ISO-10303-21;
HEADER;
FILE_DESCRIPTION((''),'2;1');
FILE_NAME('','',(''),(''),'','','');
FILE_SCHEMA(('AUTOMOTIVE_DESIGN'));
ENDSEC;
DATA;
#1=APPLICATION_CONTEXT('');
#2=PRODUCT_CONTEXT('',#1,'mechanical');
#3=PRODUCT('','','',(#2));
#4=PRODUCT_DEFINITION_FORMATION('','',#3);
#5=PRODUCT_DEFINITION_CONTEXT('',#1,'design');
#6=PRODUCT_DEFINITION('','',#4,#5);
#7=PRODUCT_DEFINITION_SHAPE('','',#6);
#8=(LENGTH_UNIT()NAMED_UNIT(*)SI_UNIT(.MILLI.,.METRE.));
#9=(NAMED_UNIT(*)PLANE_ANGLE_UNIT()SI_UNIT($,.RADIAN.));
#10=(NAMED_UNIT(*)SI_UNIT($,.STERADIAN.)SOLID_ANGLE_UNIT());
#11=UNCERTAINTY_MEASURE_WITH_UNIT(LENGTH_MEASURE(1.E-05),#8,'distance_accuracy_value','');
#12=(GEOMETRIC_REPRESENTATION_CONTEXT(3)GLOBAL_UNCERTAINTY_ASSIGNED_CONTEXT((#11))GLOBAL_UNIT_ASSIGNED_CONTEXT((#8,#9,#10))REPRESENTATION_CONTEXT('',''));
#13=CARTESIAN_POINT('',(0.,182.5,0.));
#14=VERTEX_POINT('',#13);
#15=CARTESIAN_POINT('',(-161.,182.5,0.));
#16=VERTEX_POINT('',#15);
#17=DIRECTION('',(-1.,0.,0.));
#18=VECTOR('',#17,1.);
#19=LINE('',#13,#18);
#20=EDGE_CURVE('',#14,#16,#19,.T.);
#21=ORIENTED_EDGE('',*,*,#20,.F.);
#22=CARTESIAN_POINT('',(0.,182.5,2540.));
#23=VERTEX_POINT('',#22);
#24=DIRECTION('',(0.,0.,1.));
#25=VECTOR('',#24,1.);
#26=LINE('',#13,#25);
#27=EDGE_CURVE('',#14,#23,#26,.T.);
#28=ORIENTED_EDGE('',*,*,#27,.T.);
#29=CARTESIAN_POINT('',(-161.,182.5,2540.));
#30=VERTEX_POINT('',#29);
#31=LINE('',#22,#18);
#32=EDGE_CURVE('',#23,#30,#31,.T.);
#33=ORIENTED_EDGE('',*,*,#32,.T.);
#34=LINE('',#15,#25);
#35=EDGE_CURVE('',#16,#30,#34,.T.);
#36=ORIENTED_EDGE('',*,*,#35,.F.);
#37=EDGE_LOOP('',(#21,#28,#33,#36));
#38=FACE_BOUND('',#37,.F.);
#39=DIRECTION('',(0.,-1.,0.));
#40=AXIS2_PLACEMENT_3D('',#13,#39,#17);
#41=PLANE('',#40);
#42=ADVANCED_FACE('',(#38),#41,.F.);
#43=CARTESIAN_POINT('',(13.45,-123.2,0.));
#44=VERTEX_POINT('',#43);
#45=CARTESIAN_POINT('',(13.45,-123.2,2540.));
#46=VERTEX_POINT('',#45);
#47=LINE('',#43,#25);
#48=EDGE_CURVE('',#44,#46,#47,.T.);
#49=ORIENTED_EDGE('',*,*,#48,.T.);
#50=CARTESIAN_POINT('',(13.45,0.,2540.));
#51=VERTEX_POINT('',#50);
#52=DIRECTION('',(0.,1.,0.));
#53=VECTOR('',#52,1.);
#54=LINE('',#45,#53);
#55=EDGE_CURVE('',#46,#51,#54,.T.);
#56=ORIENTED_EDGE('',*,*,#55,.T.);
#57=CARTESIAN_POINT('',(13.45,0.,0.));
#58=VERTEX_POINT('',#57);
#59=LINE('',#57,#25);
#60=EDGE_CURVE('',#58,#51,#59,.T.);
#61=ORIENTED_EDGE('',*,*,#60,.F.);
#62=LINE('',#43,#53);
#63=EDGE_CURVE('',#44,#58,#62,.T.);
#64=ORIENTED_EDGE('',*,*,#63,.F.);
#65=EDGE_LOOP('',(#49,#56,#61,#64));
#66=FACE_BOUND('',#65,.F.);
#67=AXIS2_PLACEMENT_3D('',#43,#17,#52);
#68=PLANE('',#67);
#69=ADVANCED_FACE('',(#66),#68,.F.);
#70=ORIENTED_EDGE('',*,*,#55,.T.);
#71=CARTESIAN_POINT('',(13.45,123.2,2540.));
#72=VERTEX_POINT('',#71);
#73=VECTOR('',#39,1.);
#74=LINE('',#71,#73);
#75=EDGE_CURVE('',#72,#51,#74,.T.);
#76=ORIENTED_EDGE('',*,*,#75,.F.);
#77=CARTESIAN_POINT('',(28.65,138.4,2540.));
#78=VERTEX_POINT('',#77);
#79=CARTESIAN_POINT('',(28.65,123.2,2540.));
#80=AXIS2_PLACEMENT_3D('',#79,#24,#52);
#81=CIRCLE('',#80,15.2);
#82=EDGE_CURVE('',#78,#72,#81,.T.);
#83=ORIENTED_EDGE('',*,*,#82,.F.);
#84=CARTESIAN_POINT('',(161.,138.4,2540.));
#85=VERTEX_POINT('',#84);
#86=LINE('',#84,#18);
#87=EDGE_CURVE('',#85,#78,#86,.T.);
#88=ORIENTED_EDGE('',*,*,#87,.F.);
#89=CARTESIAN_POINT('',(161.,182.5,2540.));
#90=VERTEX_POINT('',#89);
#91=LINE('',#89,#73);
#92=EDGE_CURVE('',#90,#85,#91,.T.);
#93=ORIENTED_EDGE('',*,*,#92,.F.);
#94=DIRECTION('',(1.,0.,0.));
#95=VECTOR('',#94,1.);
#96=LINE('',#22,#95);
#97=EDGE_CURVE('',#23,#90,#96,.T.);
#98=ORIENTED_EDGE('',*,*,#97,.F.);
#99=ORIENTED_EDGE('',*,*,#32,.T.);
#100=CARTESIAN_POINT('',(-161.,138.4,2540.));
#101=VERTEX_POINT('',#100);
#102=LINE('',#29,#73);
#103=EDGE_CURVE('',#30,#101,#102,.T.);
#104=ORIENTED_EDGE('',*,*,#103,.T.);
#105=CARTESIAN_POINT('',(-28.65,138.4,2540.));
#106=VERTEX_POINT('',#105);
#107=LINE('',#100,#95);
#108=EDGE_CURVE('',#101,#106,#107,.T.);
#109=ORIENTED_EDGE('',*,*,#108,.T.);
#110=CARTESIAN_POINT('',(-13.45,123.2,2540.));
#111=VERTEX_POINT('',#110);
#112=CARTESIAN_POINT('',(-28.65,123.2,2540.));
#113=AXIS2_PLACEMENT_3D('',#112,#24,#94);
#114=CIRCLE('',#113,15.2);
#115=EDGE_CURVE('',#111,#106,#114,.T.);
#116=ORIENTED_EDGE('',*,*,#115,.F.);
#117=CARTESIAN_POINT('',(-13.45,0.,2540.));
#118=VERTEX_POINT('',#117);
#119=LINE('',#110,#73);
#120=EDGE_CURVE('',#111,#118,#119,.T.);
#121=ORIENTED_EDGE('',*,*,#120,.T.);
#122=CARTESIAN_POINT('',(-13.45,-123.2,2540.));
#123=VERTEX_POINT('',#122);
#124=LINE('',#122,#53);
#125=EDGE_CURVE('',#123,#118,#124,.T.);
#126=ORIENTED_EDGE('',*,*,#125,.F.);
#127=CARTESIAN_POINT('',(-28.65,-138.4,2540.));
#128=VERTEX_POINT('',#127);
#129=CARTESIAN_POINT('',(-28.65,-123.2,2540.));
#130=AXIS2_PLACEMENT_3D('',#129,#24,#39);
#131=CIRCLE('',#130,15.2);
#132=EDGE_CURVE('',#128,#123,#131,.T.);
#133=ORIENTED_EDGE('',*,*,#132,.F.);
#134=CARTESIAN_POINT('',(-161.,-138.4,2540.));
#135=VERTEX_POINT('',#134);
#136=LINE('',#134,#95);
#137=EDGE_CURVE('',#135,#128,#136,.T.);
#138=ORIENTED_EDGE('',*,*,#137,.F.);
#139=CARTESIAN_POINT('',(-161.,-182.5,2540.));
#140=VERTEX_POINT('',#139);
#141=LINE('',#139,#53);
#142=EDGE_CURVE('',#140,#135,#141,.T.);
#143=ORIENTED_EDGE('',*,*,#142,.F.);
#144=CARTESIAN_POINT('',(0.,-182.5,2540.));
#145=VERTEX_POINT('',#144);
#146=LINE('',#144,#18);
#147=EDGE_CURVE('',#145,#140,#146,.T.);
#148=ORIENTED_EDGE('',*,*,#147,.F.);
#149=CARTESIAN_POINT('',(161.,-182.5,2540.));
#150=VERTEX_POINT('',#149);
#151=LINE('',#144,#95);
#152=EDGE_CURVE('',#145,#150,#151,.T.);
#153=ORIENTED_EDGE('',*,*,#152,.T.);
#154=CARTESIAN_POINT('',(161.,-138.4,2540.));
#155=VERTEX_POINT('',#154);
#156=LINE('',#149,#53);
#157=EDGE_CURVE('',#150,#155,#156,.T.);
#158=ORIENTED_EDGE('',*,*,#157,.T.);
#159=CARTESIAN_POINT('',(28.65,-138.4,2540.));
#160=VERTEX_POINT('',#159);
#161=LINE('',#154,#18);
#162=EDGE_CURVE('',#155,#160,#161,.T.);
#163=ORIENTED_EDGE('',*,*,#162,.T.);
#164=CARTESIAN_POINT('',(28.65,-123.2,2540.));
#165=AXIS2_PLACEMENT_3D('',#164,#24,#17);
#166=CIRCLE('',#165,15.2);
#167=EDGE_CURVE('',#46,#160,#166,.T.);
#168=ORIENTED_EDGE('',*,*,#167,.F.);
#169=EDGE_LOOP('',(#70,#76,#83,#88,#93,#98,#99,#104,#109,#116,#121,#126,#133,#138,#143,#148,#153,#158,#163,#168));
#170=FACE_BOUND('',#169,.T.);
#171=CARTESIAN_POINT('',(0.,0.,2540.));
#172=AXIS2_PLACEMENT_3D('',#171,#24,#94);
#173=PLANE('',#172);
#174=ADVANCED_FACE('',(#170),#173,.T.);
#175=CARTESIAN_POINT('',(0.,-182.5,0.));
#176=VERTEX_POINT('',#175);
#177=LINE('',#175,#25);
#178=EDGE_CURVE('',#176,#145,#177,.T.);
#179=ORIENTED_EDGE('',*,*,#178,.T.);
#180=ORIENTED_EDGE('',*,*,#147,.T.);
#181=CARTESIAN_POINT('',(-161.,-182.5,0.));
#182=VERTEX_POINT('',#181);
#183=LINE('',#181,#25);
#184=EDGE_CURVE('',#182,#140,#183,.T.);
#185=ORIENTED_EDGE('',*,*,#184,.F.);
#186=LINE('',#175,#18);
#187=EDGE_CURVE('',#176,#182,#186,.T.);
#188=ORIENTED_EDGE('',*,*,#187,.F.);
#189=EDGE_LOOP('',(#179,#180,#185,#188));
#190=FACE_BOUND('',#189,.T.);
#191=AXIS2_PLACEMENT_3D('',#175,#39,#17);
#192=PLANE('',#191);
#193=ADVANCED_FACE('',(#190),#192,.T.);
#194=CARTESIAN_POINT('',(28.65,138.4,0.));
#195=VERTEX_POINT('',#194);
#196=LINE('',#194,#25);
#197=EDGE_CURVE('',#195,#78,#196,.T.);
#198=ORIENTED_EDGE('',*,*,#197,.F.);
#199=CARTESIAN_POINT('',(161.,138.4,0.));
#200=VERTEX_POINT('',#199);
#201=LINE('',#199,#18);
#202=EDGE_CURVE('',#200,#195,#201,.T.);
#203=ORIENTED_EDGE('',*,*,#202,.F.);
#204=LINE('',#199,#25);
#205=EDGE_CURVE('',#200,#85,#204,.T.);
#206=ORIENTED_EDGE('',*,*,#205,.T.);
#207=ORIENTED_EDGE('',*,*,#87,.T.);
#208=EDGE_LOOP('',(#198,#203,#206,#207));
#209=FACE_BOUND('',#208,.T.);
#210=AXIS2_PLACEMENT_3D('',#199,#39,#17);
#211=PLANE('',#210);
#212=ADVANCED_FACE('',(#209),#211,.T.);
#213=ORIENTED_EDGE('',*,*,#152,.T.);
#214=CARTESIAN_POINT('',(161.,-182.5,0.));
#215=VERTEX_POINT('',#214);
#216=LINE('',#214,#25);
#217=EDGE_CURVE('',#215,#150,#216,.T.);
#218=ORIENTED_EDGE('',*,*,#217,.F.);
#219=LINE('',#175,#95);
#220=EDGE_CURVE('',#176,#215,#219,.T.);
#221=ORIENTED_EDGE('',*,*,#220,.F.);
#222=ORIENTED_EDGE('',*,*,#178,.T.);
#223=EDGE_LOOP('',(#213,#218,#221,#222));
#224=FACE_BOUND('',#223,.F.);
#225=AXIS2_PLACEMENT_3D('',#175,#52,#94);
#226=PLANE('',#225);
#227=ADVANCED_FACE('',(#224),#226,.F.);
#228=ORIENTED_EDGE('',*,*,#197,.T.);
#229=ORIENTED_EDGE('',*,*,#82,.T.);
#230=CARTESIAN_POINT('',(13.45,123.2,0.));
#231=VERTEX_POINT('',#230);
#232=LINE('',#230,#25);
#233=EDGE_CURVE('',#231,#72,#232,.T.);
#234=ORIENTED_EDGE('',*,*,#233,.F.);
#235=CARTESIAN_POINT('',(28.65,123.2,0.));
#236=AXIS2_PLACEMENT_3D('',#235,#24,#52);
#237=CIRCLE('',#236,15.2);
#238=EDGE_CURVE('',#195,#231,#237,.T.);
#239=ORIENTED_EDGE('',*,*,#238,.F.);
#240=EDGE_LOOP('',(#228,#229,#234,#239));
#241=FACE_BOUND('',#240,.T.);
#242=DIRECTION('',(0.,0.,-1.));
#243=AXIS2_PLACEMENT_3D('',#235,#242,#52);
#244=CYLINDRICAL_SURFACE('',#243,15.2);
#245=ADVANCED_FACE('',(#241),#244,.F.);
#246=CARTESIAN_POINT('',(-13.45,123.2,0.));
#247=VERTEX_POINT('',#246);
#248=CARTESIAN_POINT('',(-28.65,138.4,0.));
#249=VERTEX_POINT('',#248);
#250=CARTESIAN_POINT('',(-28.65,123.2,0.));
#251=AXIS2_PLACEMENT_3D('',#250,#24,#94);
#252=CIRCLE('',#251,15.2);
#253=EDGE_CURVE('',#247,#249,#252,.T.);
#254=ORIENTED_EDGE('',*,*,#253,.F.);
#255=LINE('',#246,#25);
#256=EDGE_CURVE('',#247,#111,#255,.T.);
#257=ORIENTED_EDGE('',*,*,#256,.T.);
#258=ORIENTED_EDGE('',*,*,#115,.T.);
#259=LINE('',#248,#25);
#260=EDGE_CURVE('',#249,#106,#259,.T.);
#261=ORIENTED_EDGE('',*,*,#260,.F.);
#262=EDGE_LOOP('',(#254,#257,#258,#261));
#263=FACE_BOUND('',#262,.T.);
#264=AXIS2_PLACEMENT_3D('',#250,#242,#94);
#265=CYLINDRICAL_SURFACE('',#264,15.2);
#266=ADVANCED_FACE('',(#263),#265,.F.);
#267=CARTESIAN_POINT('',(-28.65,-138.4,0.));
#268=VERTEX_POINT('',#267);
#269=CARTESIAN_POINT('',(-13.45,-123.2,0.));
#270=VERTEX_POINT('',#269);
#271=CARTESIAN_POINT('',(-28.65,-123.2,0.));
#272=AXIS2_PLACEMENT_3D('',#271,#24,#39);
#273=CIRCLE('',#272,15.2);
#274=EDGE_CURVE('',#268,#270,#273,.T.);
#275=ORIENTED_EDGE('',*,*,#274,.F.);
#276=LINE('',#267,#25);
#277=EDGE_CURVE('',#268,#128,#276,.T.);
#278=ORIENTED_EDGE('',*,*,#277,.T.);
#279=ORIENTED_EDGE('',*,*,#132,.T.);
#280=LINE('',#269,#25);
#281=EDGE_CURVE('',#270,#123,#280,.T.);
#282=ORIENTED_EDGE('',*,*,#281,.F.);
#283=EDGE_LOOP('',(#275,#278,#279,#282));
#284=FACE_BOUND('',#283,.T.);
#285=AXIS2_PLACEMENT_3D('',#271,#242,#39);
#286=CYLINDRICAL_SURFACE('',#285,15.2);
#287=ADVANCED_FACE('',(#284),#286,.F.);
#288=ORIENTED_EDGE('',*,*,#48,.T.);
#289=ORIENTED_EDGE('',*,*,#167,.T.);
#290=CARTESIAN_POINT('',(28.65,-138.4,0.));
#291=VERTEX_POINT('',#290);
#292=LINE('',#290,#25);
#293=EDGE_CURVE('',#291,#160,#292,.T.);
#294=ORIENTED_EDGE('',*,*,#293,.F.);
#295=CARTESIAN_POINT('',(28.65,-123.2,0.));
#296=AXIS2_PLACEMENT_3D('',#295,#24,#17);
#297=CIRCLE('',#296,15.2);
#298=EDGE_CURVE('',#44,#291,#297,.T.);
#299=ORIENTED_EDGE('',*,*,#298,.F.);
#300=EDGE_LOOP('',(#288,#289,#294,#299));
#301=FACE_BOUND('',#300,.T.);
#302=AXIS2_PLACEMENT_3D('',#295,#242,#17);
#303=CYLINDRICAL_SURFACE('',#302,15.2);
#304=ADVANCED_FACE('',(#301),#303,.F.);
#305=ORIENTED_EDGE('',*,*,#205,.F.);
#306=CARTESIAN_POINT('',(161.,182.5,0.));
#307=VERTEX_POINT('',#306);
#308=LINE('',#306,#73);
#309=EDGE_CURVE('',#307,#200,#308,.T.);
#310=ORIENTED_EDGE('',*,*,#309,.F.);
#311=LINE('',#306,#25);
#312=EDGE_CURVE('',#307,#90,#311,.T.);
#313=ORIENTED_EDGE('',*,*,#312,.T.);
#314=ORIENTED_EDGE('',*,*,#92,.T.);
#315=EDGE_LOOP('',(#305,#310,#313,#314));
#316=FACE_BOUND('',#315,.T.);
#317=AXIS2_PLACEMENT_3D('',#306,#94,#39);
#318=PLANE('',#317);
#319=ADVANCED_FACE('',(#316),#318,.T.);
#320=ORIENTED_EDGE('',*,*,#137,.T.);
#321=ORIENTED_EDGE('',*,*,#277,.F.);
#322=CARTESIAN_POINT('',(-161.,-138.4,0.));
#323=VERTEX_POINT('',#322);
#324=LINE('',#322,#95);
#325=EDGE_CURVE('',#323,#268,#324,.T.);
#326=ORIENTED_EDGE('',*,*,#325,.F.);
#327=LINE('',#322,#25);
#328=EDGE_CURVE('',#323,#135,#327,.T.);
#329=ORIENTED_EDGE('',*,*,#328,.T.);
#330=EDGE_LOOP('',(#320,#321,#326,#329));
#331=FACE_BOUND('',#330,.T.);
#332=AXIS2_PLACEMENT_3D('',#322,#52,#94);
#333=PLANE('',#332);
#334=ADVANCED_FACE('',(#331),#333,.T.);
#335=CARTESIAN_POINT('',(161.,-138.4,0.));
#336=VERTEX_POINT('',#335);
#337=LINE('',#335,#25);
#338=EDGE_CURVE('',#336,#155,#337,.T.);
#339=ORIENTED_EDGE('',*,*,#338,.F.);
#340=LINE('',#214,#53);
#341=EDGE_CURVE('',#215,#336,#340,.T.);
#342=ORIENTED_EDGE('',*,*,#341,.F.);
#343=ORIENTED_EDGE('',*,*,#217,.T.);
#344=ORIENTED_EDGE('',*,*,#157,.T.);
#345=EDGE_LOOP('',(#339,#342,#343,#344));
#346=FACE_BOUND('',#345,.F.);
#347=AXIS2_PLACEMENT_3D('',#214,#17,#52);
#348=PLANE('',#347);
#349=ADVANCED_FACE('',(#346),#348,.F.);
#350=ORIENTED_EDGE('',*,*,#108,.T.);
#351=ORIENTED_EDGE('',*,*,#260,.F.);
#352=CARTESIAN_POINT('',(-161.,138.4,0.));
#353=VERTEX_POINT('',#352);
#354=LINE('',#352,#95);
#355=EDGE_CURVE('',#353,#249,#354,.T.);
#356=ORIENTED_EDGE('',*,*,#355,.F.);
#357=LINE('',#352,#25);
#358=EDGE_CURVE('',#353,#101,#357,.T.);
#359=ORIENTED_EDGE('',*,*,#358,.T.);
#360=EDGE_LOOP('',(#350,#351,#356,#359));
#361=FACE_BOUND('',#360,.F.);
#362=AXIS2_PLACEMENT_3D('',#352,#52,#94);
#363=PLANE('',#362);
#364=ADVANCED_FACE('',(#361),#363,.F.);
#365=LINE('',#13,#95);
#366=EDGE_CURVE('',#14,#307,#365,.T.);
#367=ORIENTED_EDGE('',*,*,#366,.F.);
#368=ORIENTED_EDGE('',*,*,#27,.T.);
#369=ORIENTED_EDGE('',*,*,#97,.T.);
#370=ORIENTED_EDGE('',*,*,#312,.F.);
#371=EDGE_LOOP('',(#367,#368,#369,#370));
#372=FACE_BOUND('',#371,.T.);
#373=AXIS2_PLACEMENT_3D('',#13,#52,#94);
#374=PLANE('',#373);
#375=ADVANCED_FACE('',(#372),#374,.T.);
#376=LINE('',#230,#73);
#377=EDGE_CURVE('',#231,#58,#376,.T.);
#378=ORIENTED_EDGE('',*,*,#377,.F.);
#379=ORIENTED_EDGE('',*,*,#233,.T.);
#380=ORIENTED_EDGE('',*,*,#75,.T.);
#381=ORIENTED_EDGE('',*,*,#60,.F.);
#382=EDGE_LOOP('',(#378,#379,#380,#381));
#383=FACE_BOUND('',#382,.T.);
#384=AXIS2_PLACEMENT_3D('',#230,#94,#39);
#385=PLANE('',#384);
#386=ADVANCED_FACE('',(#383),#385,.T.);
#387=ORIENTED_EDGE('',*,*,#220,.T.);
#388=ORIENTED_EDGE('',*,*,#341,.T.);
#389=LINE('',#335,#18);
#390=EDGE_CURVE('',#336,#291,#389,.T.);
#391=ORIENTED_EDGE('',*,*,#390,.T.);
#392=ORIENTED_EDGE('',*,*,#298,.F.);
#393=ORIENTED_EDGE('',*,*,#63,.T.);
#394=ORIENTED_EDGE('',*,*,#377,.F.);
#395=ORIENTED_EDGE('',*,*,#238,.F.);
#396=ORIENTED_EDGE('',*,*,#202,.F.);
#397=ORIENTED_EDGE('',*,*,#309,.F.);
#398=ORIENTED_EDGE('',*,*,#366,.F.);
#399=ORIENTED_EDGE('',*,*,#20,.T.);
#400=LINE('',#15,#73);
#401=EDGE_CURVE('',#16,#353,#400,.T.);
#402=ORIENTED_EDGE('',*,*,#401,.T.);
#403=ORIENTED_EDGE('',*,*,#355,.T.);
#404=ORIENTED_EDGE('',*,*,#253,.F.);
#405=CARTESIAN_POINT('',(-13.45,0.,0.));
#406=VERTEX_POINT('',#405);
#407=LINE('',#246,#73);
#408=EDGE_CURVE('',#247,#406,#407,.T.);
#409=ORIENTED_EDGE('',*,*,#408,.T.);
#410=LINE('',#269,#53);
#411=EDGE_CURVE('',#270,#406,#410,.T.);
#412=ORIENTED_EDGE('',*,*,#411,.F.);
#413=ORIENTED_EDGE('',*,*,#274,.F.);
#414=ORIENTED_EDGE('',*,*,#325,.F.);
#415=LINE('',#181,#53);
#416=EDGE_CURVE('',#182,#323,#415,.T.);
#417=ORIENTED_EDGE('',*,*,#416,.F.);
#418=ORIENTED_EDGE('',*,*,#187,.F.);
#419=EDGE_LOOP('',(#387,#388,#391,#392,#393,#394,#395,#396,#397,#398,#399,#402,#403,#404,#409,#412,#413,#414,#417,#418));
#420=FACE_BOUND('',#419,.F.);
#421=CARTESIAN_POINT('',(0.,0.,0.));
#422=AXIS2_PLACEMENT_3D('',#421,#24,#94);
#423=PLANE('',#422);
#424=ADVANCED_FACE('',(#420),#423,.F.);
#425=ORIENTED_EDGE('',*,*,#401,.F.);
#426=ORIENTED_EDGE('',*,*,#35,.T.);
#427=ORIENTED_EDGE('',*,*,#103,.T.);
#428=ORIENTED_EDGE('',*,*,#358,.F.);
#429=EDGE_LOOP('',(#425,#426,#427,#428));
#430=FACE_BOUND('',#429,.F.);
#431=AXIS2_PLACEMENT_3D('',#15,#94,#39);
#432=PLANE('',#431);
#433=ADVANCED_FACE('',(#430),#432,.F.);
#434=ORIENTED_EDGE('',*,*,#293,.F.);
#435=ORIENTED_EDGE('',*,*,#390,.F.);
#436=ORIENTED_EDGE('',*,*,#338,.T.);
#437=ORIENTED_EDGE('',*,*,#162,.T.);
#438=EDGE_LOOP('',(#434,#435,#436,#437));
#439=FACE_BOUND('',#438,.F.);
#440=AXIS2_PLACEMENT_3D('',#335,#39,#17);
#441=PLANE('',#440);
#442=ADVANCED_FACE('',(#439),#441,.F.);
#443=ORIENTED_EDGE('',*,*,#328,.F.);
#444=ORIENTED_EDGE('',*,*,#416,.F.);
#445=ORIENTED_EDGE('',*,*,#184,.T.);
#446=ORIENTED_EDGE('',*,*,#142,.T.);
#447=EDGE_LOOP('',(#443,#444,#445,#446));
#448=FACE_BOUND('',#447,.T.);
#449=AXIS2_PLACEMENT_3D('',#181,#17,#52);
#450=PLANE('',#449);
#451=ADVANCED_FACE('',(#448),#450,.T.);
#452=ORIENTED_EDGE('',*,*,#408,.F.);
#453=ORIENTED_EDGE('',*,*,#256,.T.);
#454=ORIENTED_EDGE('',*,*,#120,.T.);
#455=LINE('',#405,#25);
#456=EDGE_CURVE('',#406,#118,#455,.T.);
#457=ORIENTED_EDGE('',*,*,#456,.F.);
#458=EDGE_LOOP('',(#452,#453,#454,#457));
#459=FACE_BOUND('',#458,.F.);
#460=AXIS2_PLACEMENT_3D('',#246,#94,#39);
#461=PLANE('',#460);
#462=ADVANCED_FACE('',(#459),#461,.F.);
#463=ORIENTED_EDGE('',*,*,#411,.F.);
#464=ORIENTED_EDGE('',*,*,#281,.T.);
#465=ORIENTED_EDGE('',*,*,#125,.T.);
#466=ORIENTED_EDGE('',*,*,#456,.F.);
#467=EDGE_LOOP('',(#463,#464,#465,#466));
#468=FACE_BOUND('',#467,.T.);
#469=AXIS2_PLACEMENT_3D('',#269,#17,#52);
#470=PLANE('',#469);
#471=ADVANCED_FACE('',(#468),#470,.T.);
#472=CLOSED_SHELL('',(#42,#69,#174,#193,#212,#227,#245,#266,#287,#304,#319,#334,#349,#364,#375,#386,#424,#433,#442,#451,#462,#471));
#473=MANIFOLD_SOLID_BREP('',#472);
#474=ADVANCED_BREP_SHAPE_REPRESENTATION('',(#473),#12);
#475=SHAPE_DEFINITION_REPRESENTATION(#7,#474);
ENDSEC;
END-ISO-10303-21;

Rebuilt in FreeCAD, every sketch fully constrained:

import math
import FreeCAD as App
import Part
import Sketcher
from FreeCAD import Vector

doc = App.newDocument("Part")
body = doc.addObject("PartDesign::Body", "Body")

# Sketch on XY plane
sketch1 = doc.addObject("Sketcher::SketchObject", "Sketch")
body.addObject(sketch1)
sketch1.AttachmentSupport = (doc.XY_Plane, [""])
sketch1.MapMode = "FlatFace"
sketch1.addGeometry(Part.LineSegment(Vector(-161, -138, 0), Vector(-161, -182, 0)), False)
sketch1.addGeometry(Part.LineSegment(Vector(-161, -182, 0), Vector(161, -182, 0)), False)
sketch1.addGeometry(Part.LineSegment(Vector(161, -182, 0), Vector(161, -138, 0)), False)
sketch1.addGeometry(Part.LineSegment(Vector(161, -138, 0), Vector(29, -138, 0)), False)
sketch1.addGeometry(Part.ArcOfCircle(Part.Circle(Vector(29, -123, 0), Vector(0, 0, 1), 15), math.radians(180), math.radians(270)), False)
sketch1.addGeometry(Part.LineSegment(Vector(13, -123, 0), Vector(13, 123, 0)), False)
sketch1.addGeometry(Part.ArcOfCircle(Part.Circle(Vector(29, 123, 0), Vector(0, 0, 1), 15), math.radians(90), math.radians(180)), False)
sketch1.addGeometry(Part.LineSegment(Vector(29, 138, 0), Vector(161, 138, 0)), False)
sketch1.addGeometry(Part.LineSegment(Vector(161, 138, 0), Vector(161, 182, 0)), False)
sketch1.addGeometry(Part.LineSegment(Vector(161, 182, 0), Vector(-161, 182, 0)), False)
sketch1.addGeometry(Part.LineSegment(Vector(-161, 182, 0), Vector(-161, 138, 0)), False)
sketch1.addGeometry(Part.LineSegment(Vector(-161, 138, 0), Vector(-29, 138, 0)), False)
sketch1.addGeometry(Part.ArcOfCircle(Part.Circle(Vector(-29, 123, 0), Vector(0, 0, 1), 15), math.radians(0), math.radians(90)), False)
sketch1.addGeometry(Part.LineSegment(Vector(-13, 123, 0), Vector(-13, -123, 0)), False)
sketch1.addGeometry(Part.ArcOfCircle(Part.Circle(Vector(-29, -123, 0), Vector(0, 0, 1), 15), math.radians(-90), math.radians(0)), False)
sketch1.addGeometry(Part.LineSegment(Vector(-29, -138, 0), Vector(-161, -138, 0)), False)
sketch1.addConstraint(Sketcher.Constraint("Coincident", 0, 2, 1, 1))
sketch1.addConstraint(Sketcher.Constraint("Coincident", 1, 2, 2, 1))
sketch1.addConstraint(Sketcher.Constraint("Coincident", 2, 2, 3, 1))
sketch1.addConstraint(Sketcher.Constraint("Tangent", 3, 2, 4, 2))
sketch1.addConstraint(Sketcher.Constraint("Tangent", 4, 1, 5, 1))
sketch1.addConstraint(Sketcher.Constraint("Tangent", 5, 2, 6, 2))
sketch1.addConstraint(Sketcher.Constraint("Tangent", 6, 1, 7, 1))
sketch1.addConstraint(Sketcher.Constraint("Coincident", 7, 2, 8, 1))
sketch1.addConstraint(Sketcher.Constraint("Coincident", 8, 2, 9, 1))
sketch1.addConstraint(Sketcher.Constraint("Coincident", 9, 2, 10, 1))
sketch1.addConstraint(Sketcher.Constraint("Coincident", 10, 2, 11, 1))
sketch1.addConstraint(Sketcher.Constraint("Tangent", 11, 2, 12, 2))
sketch1.addConstraint(Sketcher.Constraint("Tangent", 12, 1, 13, 1))
sketch1.addConstraint(Sketcher.Constraint("Tangent", 13, 2, 14, 2))
sketch1.addConstraint(Sketcher.Constraint("Tangent", 14, 1, 15, 1))
sketch1.addConstraint(Sketcher.Constraint("Coincident", 15, 2, 0, 1))
sketch1.addConstraint(Sketcher.Constraint("Vertical", 0))
sketch1.addConstraint(Sketcher.Constraint("Horizontal", 1))
sketch1.addConstraint(Sketcher.Constraint("Vertical", 2))
sketch1.addConstraint(Sketcher.Constraint("Horizontal", 3))
sketch1.addConstraint(Sketcher.Constraint("Vertical", 5))
sketch1.addConstraint(Sketcher.Constraint("Horizontal", 7))
sketch1.addConstraint(Sketcher.Constraint("Vertical", 8))
sketch1.addConstraint(Sketcher.Constraint("Horizontal", 9))
sketch1.addConstraint(Sketcher.Constraint("Vertical", 10))
sketch1.addConstraint(Sketcher.Constraint("Horizontal", 11))
sketch1.addConstraint(Sketcher.Constraint("Vertical", 13))
sketch1.addConstraint(Sketcher.Constraint("Horizontal", 15))
sketch1.addConstraint(Sketcher.Constraint("Equal", 4, 6))
sketch1.addConstraint(Sketcher.Constraint("Equal", 6, 12))
sketch1.addConstraint(Sketcher.Constraint("Equal", 12, 14))
sketch1.addConstraint(Sketcher.Constraint("Symmetric", 4, 3, 12, 3, -1, 1))
sketch1.addConstraint(Sketcher.Constraint("Symmetric", 0, 2, 8, 2, -1, 1))
sketch1.addConstraint(Sketcher.Constraint("Symmetric", 7, 2, 10, 2, -2))
sketch1.addConstraint(Sketcher.Constraint("Symmetric", 2, 2, 15, 2, -2))
sketch1.addConstraint(Sketcher.Constraint("Radius", 4, 15.2))
sketch1.addConstraint(Sketcher.Constraint("DistanceY", 0, 2, 0, 1, 44.1))
sketch1.addConstraint(Sketcher.Constraint("DistanceX", 0, 2, -1, 1, 161.0))
sketch1.addConstraint(Sketcher.Constraint("DistanceY", 0, 2, -1, 1, 182.5))
sketch1.addConstraint(Sketcher.Constraint("DistanceX", -1, 1, 4, 1, 13.45))
pad1 = doc.addObject("PartDesign::Pad", "Pad")
body.addObject(pad1)
pad1.Profile = sketch1
pad1.Length = 2540

doc.recompute()
